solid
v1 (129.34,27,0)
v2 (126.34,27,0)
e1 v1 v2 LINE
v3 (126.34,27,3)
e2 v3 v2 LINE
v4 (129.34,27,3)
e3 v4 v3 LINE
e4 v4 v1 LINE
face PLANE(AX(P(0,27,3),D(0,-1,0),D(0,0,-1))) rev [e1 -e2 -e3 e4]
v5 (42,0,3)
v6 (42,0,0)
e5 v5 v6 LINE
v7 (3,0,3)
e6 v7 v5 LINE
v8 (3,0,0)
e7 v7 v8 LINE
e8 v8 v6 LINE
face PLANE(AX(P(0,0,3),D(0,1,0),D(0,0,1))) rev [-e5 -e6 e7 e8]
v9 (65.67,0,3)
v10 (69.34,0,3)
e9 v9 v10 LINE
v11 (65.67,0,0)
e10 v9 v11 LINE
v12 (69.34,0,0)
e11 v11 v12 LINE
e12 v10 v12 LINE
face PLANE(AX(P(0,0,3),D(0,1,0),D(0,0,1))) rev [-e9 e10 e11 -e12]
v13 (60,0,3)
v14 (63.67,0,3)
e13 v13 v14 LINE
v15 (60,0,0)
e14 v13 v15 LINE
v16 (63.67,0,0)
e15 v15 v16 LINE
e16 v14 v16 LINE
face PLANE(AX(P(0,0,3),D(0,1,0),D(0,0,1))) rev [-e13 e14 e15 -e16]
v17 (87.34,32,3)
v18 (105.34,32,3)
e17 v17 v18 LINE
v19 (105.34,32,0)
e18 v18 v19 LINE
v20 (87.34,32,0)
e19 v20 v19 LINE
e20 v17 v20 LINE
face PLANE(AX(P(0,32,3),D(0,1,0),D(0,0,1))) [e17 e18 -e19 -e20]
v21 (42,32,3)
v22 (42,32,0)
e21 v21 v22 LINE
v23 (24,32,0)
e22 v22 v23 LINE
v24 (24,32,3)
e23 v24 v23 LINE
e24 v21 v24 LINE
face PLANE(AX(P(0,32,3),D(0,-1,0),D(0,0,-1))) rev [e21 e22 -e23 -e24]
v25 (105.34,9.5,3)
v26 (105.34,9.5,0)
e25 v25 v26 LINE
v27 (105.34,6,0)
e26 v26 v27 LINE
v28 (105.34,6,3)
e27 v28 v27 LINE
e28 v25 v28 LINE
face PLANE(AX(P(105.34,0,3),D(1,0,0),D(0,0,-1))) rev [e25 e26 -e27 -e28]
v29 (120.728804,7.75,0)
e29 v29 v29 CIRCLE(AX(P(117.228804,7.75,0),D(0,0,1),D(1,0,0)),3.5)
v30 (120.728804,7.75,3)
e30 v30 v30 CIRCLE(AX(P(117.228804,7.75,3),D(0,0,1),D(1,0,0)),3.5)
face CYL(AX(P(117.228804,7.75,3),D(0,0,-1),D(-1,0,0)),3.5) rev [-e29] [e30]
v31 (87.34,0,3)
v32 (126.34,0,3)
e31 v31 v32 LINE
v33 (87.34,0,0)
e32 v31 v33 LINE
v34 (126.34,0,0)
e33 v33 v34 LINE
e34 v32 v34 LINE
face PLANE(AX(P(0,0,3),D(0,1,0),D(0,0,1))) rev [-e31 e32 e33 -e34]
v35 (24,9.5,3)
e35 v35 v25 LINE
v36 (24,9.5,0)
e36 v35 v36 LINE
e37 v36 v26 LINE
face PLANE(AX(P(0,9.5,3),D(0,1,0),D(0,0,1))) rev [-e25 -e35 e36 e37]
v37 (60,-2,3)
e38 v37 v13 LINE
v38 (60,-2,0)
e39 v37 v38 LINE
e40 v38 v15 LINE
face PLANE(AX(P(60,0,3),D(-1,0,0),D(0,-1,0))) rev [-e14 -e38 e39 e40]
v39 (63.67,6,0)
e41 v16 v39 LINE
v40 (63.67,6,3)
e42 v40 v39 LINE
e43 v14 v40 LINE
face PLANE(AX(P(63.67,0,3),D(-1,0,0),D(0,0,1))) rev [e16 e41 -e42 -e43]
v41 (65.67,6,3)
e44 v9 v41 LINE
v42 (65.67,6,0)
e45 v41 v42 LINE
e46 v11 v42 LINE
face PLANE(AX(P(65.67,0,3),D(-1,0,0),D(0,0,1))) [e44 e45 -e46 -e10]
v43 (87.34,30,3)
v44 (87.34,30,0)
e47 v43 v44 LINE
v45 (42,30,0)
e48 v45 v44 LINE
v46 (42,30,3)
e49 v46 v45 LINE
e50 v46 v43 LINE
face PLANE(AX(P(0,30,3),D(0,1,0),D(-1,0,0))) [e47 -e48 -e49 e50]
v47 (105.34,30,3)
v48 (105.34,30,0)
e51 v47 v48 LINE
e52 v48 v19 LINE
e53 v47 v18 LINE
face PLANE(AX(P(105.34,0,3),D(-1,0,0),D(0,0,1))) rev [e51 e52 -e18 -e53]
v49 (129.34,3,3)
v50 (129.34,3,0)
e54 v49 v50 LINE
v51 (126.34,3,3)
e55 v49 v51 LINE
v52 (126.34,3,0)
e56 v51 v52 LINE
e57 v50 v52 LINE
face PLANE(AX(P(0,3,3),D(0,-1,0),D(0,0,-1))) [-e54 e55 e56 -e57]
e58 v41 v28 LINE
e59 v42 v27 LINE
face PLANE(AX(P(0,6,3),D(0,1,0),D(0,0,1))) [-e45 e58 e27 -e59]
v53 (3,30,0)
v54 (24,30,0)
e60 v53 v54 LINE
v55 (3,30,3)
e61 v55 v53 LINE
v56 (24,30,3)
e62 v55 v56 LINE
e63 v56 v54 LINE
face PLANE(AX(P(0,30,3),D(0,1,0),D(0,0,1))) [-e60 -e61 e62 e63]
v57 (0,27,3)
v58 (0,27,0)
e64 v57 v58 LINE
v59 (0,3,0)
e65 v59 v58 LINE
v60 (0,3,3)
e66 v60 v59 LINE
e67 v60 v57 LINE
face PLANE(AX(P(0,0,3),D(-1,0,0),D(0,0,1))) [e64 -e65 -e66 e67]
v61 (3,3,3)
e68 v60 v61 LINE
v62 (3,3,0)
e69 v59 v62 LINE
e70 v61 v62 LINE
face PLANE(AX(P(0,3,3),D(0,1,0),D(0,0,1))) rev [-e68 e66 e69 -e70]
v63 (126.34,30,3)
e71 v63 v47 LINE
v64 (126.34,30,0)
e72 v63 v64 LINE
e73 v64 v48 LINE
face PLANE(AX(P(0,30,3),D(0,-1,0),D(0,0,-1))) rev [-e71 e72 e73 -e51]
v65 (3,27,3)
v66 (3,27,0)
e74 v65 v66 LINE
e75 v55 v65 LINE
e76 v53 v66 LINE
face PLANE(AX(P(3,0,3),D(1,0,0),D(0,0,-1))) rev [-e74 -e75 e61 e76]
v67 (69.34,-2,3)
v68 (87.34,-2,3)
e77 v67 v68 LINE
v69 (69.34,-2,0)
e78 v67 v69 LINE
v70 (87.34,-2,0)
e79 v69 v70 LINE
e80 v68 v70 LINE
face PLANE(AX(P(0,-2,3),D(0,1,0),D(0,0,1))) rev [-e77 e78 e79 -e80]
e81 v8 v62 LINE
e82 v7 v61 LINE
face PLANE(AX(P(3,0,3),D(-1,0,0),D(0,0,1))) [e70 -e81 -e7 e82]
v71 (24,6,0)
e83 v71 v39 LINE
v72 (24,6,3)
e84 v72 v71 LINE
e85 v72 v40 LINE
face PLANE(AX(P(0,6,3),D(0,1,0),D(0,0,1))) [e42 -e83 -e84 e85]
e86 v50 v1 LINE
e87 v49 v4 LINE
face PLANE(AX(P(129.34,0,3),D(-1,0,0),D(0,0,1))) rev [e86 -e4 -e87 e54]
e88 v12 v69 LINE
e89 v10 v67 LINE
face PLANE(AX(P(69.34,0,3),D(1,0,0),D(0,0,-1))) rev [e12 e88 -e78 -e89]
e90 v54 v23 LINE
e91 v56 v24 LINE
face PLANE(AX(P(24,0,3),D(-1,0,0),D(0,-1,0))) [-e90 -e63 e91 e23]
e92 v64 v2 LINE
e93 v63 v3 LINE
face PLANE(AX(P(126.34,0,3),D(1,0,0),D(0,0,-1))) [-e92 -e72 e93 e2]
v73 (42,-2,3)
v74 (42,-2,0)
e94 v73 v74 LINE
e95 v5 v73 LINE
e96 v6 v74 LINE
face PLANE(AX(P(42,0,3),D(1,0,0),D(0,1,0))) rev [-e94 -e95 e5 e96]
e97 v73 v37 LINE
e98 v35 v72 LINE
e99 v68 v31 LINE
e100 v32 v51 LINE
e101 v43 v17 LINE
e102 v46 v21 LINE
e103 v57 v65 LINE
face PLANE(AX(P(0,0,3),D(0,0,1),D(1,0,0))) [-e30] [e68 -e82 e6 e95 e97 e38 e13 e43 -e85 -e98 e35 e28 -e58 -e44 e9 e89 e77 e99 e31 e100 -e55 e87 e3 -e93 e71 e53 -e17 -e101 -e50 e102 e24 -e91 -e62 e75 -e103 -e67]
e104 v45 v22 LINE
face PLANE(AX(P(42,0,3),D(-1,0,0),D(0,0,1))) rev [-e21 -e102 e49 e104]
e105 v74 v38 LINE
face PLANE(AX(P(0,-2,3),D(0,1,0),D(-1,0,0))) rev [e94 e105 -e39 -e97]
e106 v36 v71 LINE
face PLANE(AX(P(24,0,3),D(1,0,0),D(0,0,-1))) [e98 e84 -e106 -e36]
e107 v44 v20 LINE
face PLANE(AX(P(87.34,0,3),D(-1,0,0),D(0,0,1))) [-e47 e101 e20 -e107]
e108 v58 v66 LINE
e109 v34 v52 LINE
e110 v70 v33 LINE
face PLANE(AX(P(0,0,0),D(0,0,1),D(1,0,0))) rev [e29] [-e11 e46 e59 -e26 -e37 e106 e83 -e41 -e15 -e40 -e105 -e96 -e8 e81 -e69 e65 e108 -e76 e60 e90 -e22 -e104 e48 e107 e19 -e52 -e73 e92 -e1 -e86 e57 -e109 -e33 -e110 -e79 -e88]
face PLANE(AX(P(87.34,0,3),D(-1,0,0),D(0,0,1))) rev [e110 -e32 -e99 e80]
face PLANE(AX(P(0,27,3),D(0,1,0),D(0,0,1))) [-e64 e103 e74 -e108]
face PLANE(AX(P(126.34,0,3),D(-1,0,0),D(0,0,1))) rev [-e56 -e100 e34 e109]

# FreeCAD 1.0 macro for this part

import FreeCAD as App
import Part
import Sketcher
from FreeCAD import Vector

doc = App.newDocument("Part")
params = doc.addObject("Spreadsheet::Sheet", "Params")
for row, (alias, value) in enumerate([
    ("sketch1_diameter", "7 mm"),
    ("sketch1_width", "39 mm"),
    ("sketch1_width2", "18 mm"),
    ("sketch1_width3", "3 mm"),
    ("sketch1_height", "2 mm"),
    ("pad1_length", "3 mm"),
], start=1):
    params.set(f"A{row}", alias)
    params.set(f"B{row}", "=" + value)
    params.setAlias(f"B{row}", alias)

body = doc.addObject("PartDesign::Body", "Body")

sketch1 = body.newObject("Sketcher::SketchObject", "Sketch")
sketch1.AttachmentSupport = (doc.getObject("XY_Plane"), [""])
sketch1.MapMode = "FlatFace"
sketch1.addGeometry(Part.LineSegment(Vector(3, 3, 0), Vector(3, 0, 0)), False)
sketch1.addGeometry(Part.LineSegment(Vector(3, 0, 0), Vector(42, 0, 0)), False)
sketch1.addGeometry(Part.LineSegment(Vector(42, 0, 0), Vector(42, -2, 0)), False)
sketch1.addGeometry(Part.LineSegment(Vector(42, -2, 0), Vector(60, -2, 0)), False)
sketch1.addGeometry(Part.LineSegment(Vector(60, -2, 0), Vector(60, 0, 0)), False)
sketch1.addGeometry(Part.LineSegment(Vector(60, 0, 0), Vector(63.7, 0, 0)), False)
sketch1.addGeometry(Part.LineSegment(Vector(63.7, 0, 0), Vector(63.7, 6, 0)), False)
sketch1.addGeometry(Part.LineSegment(Vector(63.7, 6, 0), Vector(24, 6, 0)), False)
sketch1.addGeometry(Part.LineSegment(Vector(24, 6, 0), Vector(24, 9.5, 0)), False)
sketch1.addGeometry(Part.LineSegment(Vector(24, 9.5, 0), Vector(105.3, 9.5, 0)), False)
sketch1.addGeometry(Part.LineSegment(Vector(105.3, 9.5, 0), Vector(105.3, 6, 0)), False)
sketch1.addGeometry(Part.LineSegment(Vector(105.3, 6, 0), Vector(65.7, 6, 0)), False)
sketch1.addGeometry(Part.LineSegment(Vector(65.7, 6, 0), Vector(65.7, 0, 0)), False)
sketch1.addGeometry(Part.LineSegment(Vector(65.7, 0, 0), Vector(69.3, 0, 0)), False)
sketch1.addGeometry(Part.LineSegment(Vector(69.3, 0, 0), Vector(69.3, -2, 0)), False)
sketch1.addGeometry(Part.LineSegment(Vector(69.3, -2, 0), Vector(87.3, -2, 0)), False)
sketch1.addGeometry(Part.LineSegment(Vector(87.3, -2, 0), Vector(87.3, 0, 0)), False)
sketch1.addGeometry(Part.LineSegment(Vector(87.3, 0, 0), Vector(126.3, 0, 0)), False)
sketch1.addGeometry(Part.LineSegment(Vector(126.3, 0, 0), Vector(126.3, 3, 0)), False)
sketch1.addGeometry(Part.LineSegment(Vector(126.3, 3, 0), Vector(129.3, 3, 0)), False)
sketch1.addGeometry(Part.LineSegment(Vector(129.3, 3, 0), Vector(129.3, 27, 0)), False)
sketch1.addGeometry(Part.LineSegment(Vector(129.3, 27, 0), Vector(126.3, 27, 0)), False)
sketch1.addGeometry(Part.LineSegment(Vector(126.3, 27, 0), Vector(126.3, 30, 0)), False)
sketch1.addGeometry(Part.LineSegment(Vector(126.3, 30, 0), Vector(105.3, 30, 0)), False)
sketch1.addGeometry(Part.LineSegment(Vector(105.3, 30, 0), Vector(105.3, 32, 0)), False)
sketch1.addGeometry(Part.LineSegment(Vector(105.3, 32, 0), Vector(87.3, 32, 0)), False)
sketch1.addGeometry(Part.LineSegment(Vector(87.3, 32, 0), Vector(87.3, 30, 0)), False)
sketch1.addGeometry(Part.LineSegment(Vector(87.3, 30, 0), Vector(42, 30, 0)), False)
sketch1.addGeometry(Part.LineSegment(Vector(42, 30, 0), Vector(42, 32, 0)), False)
sketch1.addGeometry(Part.LineSegment(Vector(42, 32, 0), Vector(24, 32, 0)), False)
sketch1.addGeometry(Part.LineSegment(Vector(24, 32, 0), Vector(24, 30, 0)), False)
sketch1.addGeometry(Part.LineSegment(Vector(24, 30, 0), Vector(3, 30, 0)), False)
sketch1.addGeometry(Part.LineSegment(Vector(3, 30, 0), Vector(3, 27, 0)), False)
sketch1.addGeometry(Part.LineSegment(Vector(3, 27, 0), Vector(0, 27, 0)), False)
sketch1.addGeometry(Part.LineSegment(Vector(0, 27, 0), Vector(0, 3, 0)), False)
sketch1.addGeometry(Part.LineSegment(Vector(0, 3, 0), Vector(3, 3, 0)), False)
sketch1.addGeometry(Part.Circle(Vector(117.2, 7.8, 0), Vector(0, 0, 1), 3.5), False)
sketch1.addConstraint(Sketcher.Constraint("Coincident", 0, 2, 1, 1))
sketch1.addConstraint(Sketcher.Constraint("Coincident", 1, 2, 2, 1))
sketch1.addConstraint(Sketcher.Constraint("Coincident", 2, 2, 3, 1))
sketch1.addConstraint(Sketcher.Constraint("Coincident", 3, 2, 4, 1))
sketch1.addConstraint(Sketcher.Constraint("Coincident", 4, 2, 5, 1))
sketch1.addConstraint(Sketcher.Constraint("Coincident", 5, 2, 6, 1))
sketch1.addConstraint(Sketcher.Constraint("Coincident", 6, 2, 7, 1))
sketch1.addConstraint(Sketcher.Constraint("Coincident", 7, 2, 8, 1))
sketch1.addConstraint(Sketcher.Constraint("Coincident", 8, 2, 9, 1))
sketch1.addConstraint(Sketcher.Constraint("Coincident", 9, 2, 10, 1))
sketch1.addConstraint(Sketcher.Constraint("Coincident", 10, 2, 11, 1))
sketch1.addConstraint(Sketcher.Constraint("Coincident", 11, 2, 12, 1))
sketch1.addConstraint(Sketcher.Constraint("Coincident", 12, 2, 13, 1))
sketch1.addConstraint(Sketcher.Constraint("Coincident", 13, 2, 14, 1))
sketch1.addConstraint(Sketcher.Constraint("Coincident", 14, 2, 15, 1))
sketch1.addConstraint(Sketcher.Constraint("Coincident", 15, 2, 16, 1))
sketch1.addConstraint(Sketcher.Constraint("Coincident", 16, 2, 17, 1))
sketch1.addConstraint(Sketcher.Constraint("Coincident", 17, 2, 18, 1))
sketch1.addConstraint(Sketcher.Constraint("Coincident", 18, 2, 19, 1))
sketch1.addConstraint(Sketcher.Constraint("Coincident", 19, 2, 20, 1))
sketch1.addConstraint(Sketcher.Constraint("Coincident", 20, 2, 21, 1))
sketch1.addConstraint(Sketcher.Constraint("Coincident", 21, 2, 22, 1))
sketch1.addConstraint(Sketcher.Constraint("Coincident", 22, 2, 23, 1))
sketch1.addConstraint(Sketcher.Constraint("Coincident", 23, 2, 24, 1))
sketch1.addConstraint(Sketcher.Constraint("Coincident", 24, 2, 25, 1))
sketch1.addConstraint(Sketcher.Constraint("Coincident", 25, 2, 26, 1))
sketch1.addConstraint(Sketcher.Constraint("Coincident", 26, 2, 27, 1))
sketch1.addConstraint(Sketcher.Constraint("Coincident", 27, 2, 28, 1))
sketch1.addConstraint(Sketcher.Constraint("Coincident", 28, 2, 29, 1))
sketch1.addConstraint(Sketcher.Constraint("Coincident", 29, 2, 30, 1))
sketch1.addConstraint(Sketcher.Constraint("Coincident", 30, 2, 31, 1))
sketch1.addConstraint(Sketcher.Constraint("Coincident", 31, 2, 32, 1))
sketch1.addConstraint(Sketcher.Constraint("Coincident", 32, 2, 33, 1))
sketch1.addConstraint(Sketcher.Constraint("Coincident", 33, 2, 34, 1))
sketch1.addConstraint(Sketcher.Constraint("Coincident", 34, 2, 35, 1))
sketch1.addConstraint(Sketcher.Constraint("Coincident", 35, 2, 0, 1))
sketch1.addConstraint(Sketcher.Constraint("Vertical", 0))
sketch1.addConstraint(Sketcher.Constraint("Horizontal", 1))
sketch1.addConstraint(Sketcher.Constraint("Vertical", 2))
sketch1.addConstraint(Sketcher.Constraint("Horizontal", 3))
sketch1.addConstraint(Sketcher.Constraint("Vertical", 4))
sketch1.addConstraint(Sketcher.Constraint("Horizontal", 5))
sketch1.addConstraint(Sketcher.Constraint("Vertical", 6))
sketch1.addConstraint(Sketcher.Constraint("Horizontal", 7))
sketch1.addConstraint(Sketcher.Constraint("Vertical", 8))
sketch1.addConstraint(Sketcher.Constraint("Horizontal", 9))
sketch1.addConstraint(Sketcher.Constraint("Vertical", 10))
sketch1.addConstraint(Sketcher.Constraint("Horizontal", 11))
sketch1.addConstraint(Sketcher.Constraint("Vertical", 12))
sketch1.addConstraint(Sketcher.Constraint("Horizontal", 13))
sketch1.addConstraint(Sketcher.Constraint("Vertical", 14))
sketch1.addConstraint(Sketcher.Constraint("Horizontal", 15))
sketch1.addConstraint(Sketcher.Constraint("Vertical", 16))
sketch1.addConstraint(Sketcher.Constraint("Horizontal", 17))
sketch1.addConstraint(Sketcher.Constraint("Vertical", 18))
sketch1.addConstraint(Sketcher.Constraint("Horizontal", 19))
sketch1.addConstraint(Sketcher.Constraint("Vertical", 20))
sketch1.addConstraint(Sketcher.Constraint("Horizontal", 21))
sketch1.addConstraint(Sketcher.Constraint("Vertical", 22))
sketch1.addConstraint(Sketcher.Constraint("Horizontal", 23))
sketch1.addConstraint(Sketcher.Constraint("Vertical", 24))
sketch1.addConstraint(Sketcher.Constraint("Horizontal", 25))
sketch1.addConstraint(Sketcher.Constraint("Vertical", 26))
sketch1.addConstraint(Sketcher.Constraint("Horizontal", 27))
sketch1.addConstraint(Sketcher.Constraint("Vertical", 28))
sketch1.addConstraint(Sketcher.Constraint("Horizontal", 29))
sketch1.addConstraint(Sketcher.Constraint("Vertical", 30))
sketch1.addConstraint(Sketcher.Constraint("Horizontal", 31))
sketch1.addConstraint(Sketcher.Constraint("Vertical", 32))
sketch1.addConstraint(Sketcher.Constraint("Horizontal", 33))
sketch1.addConstraint(Sketcher.Constraint("Vertical", 34))
sketch1.addConstraint(Sketcher.Constraint("Horizontal", 35))
sketch1.addConstraint(Sketcher.Constraint("PointOnObject", 0, 2, -1))
sketch1.addConstraint(Sketcher.Constraint("PointOnObject", 4, 2, -1))
sketch1.addConstraint(Sketcher.Constraint("PointOnObject", 12, 2, -1))
sketch1.addConstraint(Sketcher.Constraint("PointOnObject", 16, 2, -1))
sketch1.addConstraint(Sketcher.Constraint("PointOnObject", 33, 2, -2))
sketch1.addConstraint(Sketcher.Constraint("Horizontal", 7, 2, 10, 2))
sketch1.addConstraint(Sketcher.Constraint("Horizontal", 3, 2, 14, 2))
sketch1.addConstraint(Sketcher.Constraint("Horizontal", 23, 2, 26, 2))
sketch1.addConstraint(Sketcher.Constraint("Horizontal", 25, 2, 28, 2))
sketch1.addConstraint(Sketcher.Constraint("Horizontal", 27, 2, 30, 2))
sketch1.addConstraint(Sketcher.Constraint("Horizontal", 21, 2, 32, 2))
sketch1.addConstraint(Sketcher.Constraint("Horizontal", 19, 2, 34, 2))
sketch1.addConstraint(Sketcher.Constraint("Vertical", 18, 2, 21, 2))
sketch1.addConstraint(Sketcher.Constraint("Vertical", 10, 2, 23, 2))
sketch1.addConstraint(Sketcher.Constraint("Vertical", 16, 2, 25, 2))
sketch1.addConstraint(Sketcher.Constraint("Vertical", 2, 2, 27, 2))
sketch1.addConstraint(Sketcher.Constraint("Vertical", 8, 2, 29, 2))
sketch1.addConstraint(Sketcher.Constraint("Vertical", 0, 2, 31, 2))
sketch1.addConstraint(Sketcher.Constraint("Equal", 7, 11))
sketch1.addConstraint(Sketcher.Constraint("Equal", 5, 13))
sketch1.addConstraint(Sketcher.Constraint("Equal", 3, 15))
sketch1.addConstraint(Sketcher.Constraint("Equal", 1, 17))
sketch1.addConstraint(Sketcher.Constraint("Equal", 15, 25))
sketch1.addConstraint(Sketcher.Constraint("Equal", 21, 33))
sketch1.addConstraint(Sketcher.Constraint("Equal", 35, 0))
sketch1.addConstraint(Sketcher.Constraint("Equal", 18, 22))
sketch1.addConstraint(Sketcher.Constraint("Equal", 16, 24))
sketch1.addConstraint(Sketcher.Constraint("Diameter", 36, 7.0))
sketch1.addConstraint(Sketcher.Constraint("DistanceX", 1, 1, 1, 2, 39.0))
sketch1.addConstraint(Sketcher.Constraint("DistanceX", 3, 1, 3, 2, 18.0))
sketch1.addConstraint(Sketcher.Constraint("DistanceX", 19, 1, 19, 2, 3.0))
sketch1.addConstraint(Sketcher.Constraint("DistanceY", 2, 2, 2, 1, 2.0))
sketch1.addConstraint(Sketcher.Constraint("DistanceY", 6, 1, 6, 2, 6.0))
sketch1.addConstraint(Sketcher.Constraint("DistanceY", 20, 1, 20, 2, 24.0))
sketch1.addConstraint(Sketcher.Constraint("DistanceY", 8, 1, 8, 2, 3.5))
sketch1.addConstraint(Sketcher.Constraint("DistanceX", 6, 2, 11, 2, 2.0))
sketch1.addConstraint(Sketcher.Constraint("DistanceX", 5, 1, 5, 2, 3.67))
sketch1.addConstraint(Sketcher.Constraint("DistanceY", -1, 1, 36, 3, 7.75))
sketch1.addConstraint(Sketcher.Constraint("DistanceX", -1, 1, 36, 3, 117.228804))
sketch1.setExpression("Constraints[99]", "Params.sketch1_diameter")
sketch1.setExpression("Constraints[100]", "Params.sketch1_width")
sketch1.setExpression("Constraints[101]", "Params.sketch1_width2")
sketch1.setExpression("Constraints[102]", "Params.sketch1_width3")
sketch1.setExpression("Constraints[103]", "Params.sketch1_height")
pad1 = body.newObject("PartDesign::Pad", "Pad")
pad1.Profile = sketch1
pad1.setExpression("Length", "Params.pad1_length")

doc.recompute()
